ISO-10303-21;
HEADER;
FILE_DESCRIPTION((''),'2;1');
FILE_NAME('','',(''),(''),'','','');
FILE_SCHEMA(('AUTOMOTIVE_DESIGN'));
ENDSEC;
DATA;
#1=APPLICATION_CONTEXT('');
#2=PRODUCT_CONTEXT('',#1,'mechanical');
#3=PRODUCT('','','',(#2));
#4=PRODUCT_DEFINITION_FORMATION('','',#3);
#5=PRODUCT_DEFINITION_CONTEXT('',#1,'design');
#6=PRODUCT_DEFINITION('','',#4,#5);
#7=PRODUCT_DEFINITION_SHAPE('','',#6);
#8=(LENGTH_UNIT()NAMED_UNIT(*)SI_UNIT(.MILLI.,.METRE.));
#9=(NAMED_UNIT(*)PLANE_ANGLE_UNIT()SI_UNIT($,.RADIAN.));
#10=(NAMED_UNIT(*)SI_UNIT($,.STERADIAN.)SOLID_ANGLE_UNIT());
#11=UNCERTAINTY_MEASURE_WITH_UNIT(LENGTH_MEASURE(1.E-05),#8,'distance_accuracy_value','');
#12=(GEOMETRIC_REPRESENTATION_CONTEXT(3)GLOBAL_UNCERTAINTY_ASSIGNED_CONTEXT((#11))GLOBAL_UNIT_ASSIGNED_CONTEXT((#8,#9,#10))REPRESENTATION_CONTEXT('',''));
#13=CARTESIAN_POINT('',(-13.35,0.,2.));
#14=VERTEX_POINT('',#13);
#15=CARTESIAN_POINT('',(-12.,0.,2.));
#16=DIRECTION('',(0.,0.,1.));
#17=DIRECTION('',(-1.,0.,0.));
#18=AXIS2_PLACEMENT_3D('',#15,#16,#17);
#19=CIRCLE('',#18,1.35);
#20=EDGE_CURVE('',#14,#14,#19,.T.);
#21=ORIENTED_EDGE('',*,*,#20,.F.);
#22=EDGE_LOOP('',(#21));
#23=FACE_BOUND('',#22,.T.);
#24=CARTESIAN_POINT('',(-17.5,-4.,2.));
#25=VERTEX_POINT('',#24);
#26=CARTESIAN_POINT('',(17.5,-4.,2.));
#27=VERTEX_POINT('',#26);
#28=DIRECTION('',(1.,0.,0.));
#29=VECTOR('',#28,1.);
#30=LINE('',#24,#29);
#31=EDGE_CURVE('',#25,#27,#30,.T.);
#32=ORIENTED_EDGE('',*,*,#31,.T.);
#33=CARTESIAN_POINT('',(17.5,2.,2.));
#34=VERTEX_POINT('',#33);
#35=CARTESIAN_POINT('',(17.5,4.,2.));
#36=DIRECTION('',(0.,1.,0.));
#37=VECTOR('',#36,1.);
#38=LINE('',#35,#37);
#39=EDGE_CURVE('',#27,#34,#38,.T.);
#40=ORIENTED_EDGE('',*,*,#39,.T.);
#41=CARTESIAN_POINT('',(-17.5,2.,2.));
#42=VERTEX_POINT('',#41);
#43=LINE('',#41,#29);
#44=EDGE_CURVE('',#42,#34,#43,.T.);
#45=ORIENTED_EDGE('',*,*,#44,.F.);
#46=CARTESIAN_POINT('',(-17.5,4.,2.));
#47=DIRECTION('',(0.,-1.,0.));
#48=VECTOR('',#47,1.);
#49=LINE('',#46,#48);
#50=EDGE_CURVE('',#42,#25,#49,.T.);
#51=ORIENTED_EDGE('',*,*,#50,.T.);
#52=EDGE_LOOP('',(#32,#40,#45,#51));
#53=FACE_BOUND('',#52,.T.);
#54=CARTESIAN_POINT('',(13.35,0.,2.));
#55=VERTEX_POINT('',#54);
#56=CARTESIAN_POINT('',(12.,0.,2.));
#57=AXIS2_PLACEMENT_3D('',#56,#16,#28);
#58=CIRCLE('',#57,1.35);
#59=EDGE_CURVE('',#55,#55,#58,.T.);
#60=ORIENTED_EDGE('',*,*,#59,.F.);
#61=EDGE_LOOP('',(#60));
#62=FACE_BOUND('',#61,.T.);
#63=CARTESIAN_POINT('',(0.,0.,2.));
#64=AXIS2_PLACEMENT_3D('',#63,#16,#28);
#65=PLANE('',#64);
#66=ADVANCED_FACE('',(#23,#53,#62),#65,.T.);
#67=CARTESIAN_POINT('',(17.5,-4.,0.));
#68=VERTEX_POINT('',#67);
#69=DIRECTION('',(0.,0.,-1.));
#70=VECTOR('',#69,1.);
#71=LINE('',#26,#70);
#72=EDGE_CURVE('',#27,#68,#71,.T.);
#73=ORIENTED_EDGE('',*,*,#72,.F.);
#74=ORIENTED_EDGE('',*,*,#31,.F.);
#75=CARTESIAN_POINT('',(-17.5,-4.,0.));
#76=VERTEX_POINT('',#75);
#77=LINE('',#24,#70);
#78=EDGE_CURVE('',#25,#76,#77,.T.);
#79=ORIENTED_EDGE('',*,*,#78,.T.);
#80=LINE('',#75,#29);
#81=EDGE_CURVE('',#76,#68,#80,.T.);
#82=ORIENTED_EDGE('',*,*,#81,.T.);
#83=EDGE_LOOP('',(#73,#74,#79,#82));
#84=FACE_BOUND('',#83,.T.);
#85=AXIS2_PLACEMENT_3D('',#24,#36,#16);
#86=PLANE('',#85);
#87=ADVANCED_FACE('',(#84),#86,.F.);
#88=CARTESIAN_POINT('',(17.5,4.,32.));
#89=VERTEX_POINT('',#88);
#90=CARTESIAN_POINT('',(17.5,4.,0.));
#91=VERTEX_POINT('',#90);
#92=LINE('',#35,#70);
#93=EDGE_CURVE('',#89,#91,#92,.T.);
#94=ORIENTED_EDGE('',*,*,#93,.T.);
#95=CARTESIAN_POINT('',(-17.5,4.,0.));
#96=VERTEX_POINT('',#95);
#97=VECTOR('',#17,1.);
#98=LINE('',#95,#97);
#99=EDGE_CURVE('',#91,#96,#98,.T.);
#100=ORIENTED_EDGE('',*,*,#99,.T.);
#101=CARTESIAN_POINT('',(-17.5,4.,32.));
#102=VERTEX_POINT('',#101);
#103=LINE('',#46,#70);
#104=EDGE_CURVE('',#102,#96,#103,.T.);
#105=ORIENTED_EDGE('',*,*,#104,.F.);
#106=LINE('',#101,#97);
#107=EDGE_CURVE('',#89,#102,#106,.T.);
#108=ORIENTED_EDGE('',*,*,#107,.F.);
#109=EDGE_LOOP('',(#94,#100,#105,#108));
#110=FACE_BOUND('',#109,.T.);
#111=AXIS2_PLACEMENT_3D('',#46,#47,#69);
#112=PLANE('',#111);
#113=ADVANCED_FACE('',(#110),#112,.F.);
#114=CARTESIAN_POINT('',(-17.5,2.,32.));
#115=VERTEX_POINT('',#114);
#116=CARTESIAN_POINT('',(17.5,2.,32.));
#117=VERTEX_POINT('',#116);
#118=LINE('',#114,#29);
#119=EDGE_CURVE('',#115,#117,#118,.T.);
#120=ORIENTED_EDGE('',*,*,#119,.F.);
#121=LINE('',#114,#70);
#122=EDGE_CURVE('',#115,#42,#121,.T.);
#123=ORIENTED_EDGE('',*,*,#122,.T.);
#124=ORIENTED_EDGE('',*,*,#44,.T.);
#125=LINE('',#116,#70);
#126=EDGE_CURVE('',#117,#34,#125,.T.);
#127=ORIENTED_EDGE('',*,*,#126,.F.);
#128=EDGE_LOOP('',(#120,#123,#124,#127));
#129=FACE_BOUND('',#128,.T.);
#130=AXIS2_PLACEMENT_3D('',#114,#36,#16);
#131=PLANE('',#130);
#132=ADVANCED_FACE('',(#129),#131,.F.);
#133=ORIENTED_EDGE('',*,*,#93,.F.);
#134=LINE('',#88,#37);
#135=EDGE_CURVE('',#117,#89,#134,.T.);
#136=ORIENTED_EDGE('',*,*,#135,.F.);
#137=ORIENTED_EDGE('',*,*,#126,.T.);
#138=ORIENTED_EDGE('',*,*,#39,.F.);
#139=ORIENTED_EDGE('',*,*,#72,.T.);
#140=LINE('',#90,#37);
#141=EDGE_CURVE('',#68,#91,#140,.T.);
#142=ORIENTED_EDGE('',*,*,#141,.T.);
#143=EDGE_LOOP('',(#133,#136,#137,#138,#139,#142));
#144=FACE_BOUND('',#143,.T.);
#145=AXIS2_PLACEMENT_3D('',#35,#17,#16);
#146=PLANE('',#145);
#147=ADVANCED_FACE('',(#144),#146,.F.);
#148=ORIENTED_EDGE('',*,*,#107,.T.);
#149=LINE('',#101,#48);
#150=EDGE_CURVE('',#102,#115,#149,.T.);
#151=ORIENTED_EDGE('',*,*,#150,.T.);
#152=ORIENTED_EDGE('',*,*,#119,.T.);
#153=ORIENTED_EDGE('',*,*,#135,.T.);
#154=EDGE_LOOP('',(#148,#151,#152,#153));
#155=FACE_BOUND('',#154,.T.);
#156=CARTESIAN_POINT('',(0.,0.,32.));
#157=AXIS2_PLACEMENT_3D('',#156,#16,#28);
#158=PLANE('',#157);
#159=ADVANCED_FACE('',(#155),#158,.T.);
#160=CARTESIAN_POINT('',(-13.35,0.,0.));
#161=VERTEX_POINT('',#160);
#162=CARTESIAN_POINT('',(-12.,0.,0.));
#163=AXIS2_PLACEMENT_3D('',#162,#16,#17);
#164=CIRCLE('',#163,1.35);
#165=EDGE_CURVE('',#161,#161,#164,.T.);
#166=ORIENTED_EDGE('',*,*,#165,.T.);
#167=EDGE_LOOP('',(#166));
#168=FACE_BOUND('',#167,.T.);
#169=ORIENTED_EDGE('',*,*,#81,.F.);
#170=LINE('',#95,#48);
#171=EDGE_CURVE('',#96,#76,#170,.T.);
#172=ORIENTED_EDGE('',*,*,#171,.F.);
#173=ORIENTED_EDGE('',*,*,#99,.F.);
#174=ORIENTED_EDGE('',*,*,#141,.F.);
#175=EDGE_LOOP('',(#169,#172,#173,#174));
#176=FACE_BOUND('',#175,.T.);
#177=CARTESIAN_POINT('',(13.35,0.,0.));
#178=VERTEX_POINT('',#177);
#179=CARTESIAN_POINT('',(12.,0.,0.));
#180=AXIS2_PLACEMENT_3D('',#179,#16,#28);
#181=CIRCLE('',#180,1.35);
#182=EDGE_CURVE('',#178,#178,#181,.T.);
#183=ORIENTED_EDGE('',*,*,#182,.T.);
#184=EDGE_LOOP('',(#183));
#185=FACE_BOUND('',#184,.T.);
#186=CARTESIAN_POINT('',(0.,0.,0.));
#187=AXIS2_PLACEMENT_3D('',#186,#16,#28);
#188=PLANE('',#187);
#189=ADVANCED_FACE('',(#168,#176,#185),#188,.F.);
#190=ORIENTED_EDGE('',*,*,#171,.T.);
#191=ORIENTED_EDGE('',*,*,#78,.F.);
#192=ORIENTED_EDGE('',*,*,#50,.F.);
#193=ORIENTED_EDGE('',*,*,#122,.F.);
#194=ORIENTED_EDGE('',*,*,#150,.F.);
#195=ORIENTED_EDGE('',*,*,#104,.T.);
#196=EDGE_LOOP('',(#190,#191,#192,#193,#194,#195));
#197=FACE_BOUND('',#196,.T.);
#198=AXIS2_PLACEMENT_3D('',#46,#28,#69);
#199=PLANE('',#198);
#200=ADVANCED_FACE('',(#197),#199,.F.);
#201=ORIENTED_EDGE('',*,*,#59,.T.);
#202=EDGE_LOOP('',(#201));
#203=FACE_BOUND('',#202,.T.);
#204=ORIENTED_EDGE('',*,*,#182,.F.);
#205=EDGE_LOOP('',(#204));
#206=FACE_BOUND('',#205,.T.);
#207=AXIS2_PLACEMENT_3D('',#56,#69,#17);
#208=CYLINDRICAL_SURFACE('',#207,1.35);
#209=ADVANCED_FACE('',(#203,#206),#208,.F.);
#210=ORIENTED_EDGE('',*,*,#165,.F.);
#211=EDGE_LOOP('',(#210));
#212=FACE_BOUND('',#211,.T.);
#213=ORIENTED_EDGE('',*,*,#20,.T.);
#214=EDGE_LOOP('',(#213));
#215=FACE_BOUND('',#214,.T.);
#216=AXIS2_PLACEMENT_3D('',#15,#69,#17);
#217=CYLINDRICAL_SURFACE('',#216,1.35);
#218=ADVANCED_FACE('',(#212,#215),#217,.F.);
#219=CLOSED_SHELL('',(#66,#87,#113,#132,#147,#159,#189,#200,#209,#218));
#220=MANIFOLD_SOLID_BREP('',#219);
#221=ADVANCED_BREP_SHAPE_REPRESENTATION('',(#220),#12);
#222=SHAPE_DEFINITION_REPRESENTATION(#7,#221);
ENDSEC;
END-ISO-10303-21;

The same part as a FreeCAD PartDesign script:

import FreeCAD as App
import Part
import Sketcher


def add_polygon(sketch, points):
    """Adds a closed chain of lines whose ends are joined by coincident constraints."""
    first, n = sketch.GeometryCount, len(points)
    for a, b in zip(points, points[1:] + points[:1]):
        sketch.addGeometry(Part.LineSegment(App.Vector(*a, 0), App.Vector(*b, 0)), False)
    for i in range(n):
        sketch.addConstraint(Sketcher.Constraint("Coincident", first + i, 2, first + (i + 1) % n, 1))

doc = App.newDocument("Part")
body = doc.addObject("PartDesign::Body", "Body")

# Sketch on XY plane
sketch1 = body.newObject("Sketcher::SketchObject", "Sketch")
sketch1.AttachmentSupport = (doc.getObject("XY_Plane"), [""])
sketch1.MapMode = "FlatFace"
add_polygon(sketch1, [(-17.5, 4), (-17.5, -4), (17.5, -4), (17.5, 4)])  # lines 0-3
sketch1.addGeometry(Part.Circle(App.Vector(-12, 0, 0), App.Vector(0, 0, 1), 1.4), False)  # 4
sketch1.addGeometry(Part.Circle(App.Vector(12, 0, 0), App.Vector(0, 0, 1), 1.4), False)  # 5
sketch1.addConstraint([
    Sketcher.Constraint("Vertical", 0),
    Sketcher.Constraint("Horizontal", 1),
    Sketcher.Constraint("Vertical", 2),
    Sketcher.Constraint("Horizontal", 3),
    Sketcher.Constraint("Equal", 4, 5),
    Sketcher.Constraint("Symmetric", 4, 3, 5, 3, -1, 1),
    Sketcher.Constraint("Symmetric", 0, 2, 2, 2, -1, 1),
    Sketcher.Constraint("PointOnObject", 4, 3, -1),
    Sketcher.Constraint("Diameter", 4, 2.7),
    Sketcher.Constraint("DistanceX", 1, 1, 1, 2, 35.0),
    Sketcher.Constraint("DistanceY", 0, 2, 0, 1, 8.0),
    Sketcher.Constraint("DistanceX", 4, 3, -1, 1, 12.0),
])
pad1 = body.newObject("PartDesign::Pad", "Pad")
pad1.Profile = sketch1
pad1.Length = 2

# Sketch on XY plane
sketch2 = body.newObject("Sketcher::SketchObject", "Sketch001")
sketch2.AttachmentSupport = (doc.getObject("XY_Plane"), [""])
sketch2.MapMode = "FlatFace"
sketch2.AttachmentOffset = App.Placement(App.Vector(0, 0, 2), App.Rotation())
add_polygon(sketch2, [(-17.5, 4), (-17.5, 2), (17.5, 2), (17.5, 4)])  # lines 0-3
sketch2.addConstraint([
    Sketcher.Constraint("Vertical", 0),
    Sketcher.Constraint("Horizontal", 1),
    Sketcher.Constraint("Vertical", 2),
    Sketcher.Constraint("Horizontal", 3),
    Sketcher.Constraint("DistanceX", 1, 1, 1, 2, 35.0),
    Sketcher.Constraint("DistanceY", 0, 2, 0, 1, 2.0),
    Sketcher.Constraint("DistanceY", -1, 1, 0, 2, 2.0),
    Sketcher.Constraint("DistanceX", 0, 2, -1, 1, 17.5),
])
pad2 = body.newObject("PartDesign::Pad", "Pad001")
pad2.Profile = sketch2
pad2.Length = 30

doc.recompute()
